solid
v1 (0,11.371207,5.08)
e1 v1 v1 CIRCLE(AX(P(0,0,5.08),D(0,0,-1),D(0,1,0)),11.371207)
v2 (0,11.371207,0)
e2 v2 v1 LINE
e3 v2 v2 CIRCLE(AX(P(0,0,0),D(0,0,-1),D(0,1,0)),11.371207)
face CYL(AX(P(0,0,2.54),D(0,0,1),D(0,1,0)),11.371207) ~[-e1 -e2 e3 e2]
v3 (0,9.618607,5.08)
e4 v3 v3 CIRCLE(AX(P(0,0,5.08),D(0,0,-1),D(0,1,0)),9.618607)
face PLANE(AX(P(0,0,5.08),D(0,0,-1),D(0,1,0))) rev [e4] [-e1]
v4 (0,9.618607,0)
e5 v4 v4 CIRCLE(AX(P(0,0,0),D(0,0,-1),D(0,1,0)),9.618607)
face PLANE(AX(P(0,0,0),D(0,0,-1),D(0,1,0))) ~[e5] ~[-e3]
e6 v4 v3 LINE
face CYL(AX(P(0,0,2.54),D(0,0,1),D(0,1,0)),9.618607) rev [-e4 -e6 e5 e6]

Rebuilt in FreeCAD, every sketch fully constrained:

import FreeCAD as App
import Part
import Sketcher
from FreeCAD import Vector
Q = App.Units.Quantity


def faces_at(feature, points):
    """Names of the faces that lie closest to the given points."""
    faces = feature.Shape.Faces
    near = lambda p: min(range(len(faces)), key=lambda i: faces[i].distToShape(Part.Vertex(*p))[0])
    return sorted({f"Face{near(p) + 1}" for p in points})

doc = App.newDocument("Part")
body = doc.addObject("PartDesign::Body", "Body")

# Sketch on YZ plane
sketch1 = doc.addObject("Sketcher::SketchObject", "Sketch")
body.addObject(sketch1)
sketch1.AttachmentSupport = (doc.YZ_Plane, [""])
sketch1.MapMode = "FlatFace"
sketch1.addGeometry([
    Part.LineSegment(Vector(0, 5, 0), Vector(0, 0, 0)),
    Part.LineSegment(Vector(0, 0, 0), Vector(11, 0, 0)),
    Part.LineSegment(Vector(11, 0, 0), Vector(11, 5, 0)),
    Part.LineSegment(Vector(11, 5, 0), Vector(0, 5, 0)),
], False)
sketch1.addConstraint([
    Sketcher.Constraint("Coincident", 0, 2, 1, 1),
    Sketcher.Constraint("Coincident", 1, 2, 2, 1),
    Sketcher.Constraint("Coincident", 2, 2, 3, 1),
    Sketcher.Constraint("Coincident", 3, 2, 0, 1),
    Sketcher.Constraint("Vertical", 0),
    Sketcher.Constraint("Horizontal", 1),
    Sketcher.Constraint("Vertical", 2),
    Sketcher.Constraint("Horizontal", 3),
    Sketcher.Constraint("Coincident", 0, 2, -1, 1),
    Sketcher.Constraint("DistanceY", 0, 2, 0, 1, Q("0.2 in")),
    Sketcher.Constraint("DistanceX", 1, 1, 1, 2, 11.371207),
])
revolution = doc.addObject("PartDesign::Revolution", "Revolution")
body.addObject(revolution)
revolution.Profile = sketch1
revolution.ReferenceAxis = (sketch1, ["V_Axis"])
revolution.Angle = 360
doc.recompute()

thickness = doc.addObject("PartDesign::Thickness", "Thickness")
body.addObject(thickness)
thickness.Base = (revolution, faces_at(revolution, [(0, 0, 5.08), (0, 0, 0)]))
thickness.Value = Q("0.069 in")
thickness.Reversed = True
thickness.Join = "Arc"

doc.recompute()
